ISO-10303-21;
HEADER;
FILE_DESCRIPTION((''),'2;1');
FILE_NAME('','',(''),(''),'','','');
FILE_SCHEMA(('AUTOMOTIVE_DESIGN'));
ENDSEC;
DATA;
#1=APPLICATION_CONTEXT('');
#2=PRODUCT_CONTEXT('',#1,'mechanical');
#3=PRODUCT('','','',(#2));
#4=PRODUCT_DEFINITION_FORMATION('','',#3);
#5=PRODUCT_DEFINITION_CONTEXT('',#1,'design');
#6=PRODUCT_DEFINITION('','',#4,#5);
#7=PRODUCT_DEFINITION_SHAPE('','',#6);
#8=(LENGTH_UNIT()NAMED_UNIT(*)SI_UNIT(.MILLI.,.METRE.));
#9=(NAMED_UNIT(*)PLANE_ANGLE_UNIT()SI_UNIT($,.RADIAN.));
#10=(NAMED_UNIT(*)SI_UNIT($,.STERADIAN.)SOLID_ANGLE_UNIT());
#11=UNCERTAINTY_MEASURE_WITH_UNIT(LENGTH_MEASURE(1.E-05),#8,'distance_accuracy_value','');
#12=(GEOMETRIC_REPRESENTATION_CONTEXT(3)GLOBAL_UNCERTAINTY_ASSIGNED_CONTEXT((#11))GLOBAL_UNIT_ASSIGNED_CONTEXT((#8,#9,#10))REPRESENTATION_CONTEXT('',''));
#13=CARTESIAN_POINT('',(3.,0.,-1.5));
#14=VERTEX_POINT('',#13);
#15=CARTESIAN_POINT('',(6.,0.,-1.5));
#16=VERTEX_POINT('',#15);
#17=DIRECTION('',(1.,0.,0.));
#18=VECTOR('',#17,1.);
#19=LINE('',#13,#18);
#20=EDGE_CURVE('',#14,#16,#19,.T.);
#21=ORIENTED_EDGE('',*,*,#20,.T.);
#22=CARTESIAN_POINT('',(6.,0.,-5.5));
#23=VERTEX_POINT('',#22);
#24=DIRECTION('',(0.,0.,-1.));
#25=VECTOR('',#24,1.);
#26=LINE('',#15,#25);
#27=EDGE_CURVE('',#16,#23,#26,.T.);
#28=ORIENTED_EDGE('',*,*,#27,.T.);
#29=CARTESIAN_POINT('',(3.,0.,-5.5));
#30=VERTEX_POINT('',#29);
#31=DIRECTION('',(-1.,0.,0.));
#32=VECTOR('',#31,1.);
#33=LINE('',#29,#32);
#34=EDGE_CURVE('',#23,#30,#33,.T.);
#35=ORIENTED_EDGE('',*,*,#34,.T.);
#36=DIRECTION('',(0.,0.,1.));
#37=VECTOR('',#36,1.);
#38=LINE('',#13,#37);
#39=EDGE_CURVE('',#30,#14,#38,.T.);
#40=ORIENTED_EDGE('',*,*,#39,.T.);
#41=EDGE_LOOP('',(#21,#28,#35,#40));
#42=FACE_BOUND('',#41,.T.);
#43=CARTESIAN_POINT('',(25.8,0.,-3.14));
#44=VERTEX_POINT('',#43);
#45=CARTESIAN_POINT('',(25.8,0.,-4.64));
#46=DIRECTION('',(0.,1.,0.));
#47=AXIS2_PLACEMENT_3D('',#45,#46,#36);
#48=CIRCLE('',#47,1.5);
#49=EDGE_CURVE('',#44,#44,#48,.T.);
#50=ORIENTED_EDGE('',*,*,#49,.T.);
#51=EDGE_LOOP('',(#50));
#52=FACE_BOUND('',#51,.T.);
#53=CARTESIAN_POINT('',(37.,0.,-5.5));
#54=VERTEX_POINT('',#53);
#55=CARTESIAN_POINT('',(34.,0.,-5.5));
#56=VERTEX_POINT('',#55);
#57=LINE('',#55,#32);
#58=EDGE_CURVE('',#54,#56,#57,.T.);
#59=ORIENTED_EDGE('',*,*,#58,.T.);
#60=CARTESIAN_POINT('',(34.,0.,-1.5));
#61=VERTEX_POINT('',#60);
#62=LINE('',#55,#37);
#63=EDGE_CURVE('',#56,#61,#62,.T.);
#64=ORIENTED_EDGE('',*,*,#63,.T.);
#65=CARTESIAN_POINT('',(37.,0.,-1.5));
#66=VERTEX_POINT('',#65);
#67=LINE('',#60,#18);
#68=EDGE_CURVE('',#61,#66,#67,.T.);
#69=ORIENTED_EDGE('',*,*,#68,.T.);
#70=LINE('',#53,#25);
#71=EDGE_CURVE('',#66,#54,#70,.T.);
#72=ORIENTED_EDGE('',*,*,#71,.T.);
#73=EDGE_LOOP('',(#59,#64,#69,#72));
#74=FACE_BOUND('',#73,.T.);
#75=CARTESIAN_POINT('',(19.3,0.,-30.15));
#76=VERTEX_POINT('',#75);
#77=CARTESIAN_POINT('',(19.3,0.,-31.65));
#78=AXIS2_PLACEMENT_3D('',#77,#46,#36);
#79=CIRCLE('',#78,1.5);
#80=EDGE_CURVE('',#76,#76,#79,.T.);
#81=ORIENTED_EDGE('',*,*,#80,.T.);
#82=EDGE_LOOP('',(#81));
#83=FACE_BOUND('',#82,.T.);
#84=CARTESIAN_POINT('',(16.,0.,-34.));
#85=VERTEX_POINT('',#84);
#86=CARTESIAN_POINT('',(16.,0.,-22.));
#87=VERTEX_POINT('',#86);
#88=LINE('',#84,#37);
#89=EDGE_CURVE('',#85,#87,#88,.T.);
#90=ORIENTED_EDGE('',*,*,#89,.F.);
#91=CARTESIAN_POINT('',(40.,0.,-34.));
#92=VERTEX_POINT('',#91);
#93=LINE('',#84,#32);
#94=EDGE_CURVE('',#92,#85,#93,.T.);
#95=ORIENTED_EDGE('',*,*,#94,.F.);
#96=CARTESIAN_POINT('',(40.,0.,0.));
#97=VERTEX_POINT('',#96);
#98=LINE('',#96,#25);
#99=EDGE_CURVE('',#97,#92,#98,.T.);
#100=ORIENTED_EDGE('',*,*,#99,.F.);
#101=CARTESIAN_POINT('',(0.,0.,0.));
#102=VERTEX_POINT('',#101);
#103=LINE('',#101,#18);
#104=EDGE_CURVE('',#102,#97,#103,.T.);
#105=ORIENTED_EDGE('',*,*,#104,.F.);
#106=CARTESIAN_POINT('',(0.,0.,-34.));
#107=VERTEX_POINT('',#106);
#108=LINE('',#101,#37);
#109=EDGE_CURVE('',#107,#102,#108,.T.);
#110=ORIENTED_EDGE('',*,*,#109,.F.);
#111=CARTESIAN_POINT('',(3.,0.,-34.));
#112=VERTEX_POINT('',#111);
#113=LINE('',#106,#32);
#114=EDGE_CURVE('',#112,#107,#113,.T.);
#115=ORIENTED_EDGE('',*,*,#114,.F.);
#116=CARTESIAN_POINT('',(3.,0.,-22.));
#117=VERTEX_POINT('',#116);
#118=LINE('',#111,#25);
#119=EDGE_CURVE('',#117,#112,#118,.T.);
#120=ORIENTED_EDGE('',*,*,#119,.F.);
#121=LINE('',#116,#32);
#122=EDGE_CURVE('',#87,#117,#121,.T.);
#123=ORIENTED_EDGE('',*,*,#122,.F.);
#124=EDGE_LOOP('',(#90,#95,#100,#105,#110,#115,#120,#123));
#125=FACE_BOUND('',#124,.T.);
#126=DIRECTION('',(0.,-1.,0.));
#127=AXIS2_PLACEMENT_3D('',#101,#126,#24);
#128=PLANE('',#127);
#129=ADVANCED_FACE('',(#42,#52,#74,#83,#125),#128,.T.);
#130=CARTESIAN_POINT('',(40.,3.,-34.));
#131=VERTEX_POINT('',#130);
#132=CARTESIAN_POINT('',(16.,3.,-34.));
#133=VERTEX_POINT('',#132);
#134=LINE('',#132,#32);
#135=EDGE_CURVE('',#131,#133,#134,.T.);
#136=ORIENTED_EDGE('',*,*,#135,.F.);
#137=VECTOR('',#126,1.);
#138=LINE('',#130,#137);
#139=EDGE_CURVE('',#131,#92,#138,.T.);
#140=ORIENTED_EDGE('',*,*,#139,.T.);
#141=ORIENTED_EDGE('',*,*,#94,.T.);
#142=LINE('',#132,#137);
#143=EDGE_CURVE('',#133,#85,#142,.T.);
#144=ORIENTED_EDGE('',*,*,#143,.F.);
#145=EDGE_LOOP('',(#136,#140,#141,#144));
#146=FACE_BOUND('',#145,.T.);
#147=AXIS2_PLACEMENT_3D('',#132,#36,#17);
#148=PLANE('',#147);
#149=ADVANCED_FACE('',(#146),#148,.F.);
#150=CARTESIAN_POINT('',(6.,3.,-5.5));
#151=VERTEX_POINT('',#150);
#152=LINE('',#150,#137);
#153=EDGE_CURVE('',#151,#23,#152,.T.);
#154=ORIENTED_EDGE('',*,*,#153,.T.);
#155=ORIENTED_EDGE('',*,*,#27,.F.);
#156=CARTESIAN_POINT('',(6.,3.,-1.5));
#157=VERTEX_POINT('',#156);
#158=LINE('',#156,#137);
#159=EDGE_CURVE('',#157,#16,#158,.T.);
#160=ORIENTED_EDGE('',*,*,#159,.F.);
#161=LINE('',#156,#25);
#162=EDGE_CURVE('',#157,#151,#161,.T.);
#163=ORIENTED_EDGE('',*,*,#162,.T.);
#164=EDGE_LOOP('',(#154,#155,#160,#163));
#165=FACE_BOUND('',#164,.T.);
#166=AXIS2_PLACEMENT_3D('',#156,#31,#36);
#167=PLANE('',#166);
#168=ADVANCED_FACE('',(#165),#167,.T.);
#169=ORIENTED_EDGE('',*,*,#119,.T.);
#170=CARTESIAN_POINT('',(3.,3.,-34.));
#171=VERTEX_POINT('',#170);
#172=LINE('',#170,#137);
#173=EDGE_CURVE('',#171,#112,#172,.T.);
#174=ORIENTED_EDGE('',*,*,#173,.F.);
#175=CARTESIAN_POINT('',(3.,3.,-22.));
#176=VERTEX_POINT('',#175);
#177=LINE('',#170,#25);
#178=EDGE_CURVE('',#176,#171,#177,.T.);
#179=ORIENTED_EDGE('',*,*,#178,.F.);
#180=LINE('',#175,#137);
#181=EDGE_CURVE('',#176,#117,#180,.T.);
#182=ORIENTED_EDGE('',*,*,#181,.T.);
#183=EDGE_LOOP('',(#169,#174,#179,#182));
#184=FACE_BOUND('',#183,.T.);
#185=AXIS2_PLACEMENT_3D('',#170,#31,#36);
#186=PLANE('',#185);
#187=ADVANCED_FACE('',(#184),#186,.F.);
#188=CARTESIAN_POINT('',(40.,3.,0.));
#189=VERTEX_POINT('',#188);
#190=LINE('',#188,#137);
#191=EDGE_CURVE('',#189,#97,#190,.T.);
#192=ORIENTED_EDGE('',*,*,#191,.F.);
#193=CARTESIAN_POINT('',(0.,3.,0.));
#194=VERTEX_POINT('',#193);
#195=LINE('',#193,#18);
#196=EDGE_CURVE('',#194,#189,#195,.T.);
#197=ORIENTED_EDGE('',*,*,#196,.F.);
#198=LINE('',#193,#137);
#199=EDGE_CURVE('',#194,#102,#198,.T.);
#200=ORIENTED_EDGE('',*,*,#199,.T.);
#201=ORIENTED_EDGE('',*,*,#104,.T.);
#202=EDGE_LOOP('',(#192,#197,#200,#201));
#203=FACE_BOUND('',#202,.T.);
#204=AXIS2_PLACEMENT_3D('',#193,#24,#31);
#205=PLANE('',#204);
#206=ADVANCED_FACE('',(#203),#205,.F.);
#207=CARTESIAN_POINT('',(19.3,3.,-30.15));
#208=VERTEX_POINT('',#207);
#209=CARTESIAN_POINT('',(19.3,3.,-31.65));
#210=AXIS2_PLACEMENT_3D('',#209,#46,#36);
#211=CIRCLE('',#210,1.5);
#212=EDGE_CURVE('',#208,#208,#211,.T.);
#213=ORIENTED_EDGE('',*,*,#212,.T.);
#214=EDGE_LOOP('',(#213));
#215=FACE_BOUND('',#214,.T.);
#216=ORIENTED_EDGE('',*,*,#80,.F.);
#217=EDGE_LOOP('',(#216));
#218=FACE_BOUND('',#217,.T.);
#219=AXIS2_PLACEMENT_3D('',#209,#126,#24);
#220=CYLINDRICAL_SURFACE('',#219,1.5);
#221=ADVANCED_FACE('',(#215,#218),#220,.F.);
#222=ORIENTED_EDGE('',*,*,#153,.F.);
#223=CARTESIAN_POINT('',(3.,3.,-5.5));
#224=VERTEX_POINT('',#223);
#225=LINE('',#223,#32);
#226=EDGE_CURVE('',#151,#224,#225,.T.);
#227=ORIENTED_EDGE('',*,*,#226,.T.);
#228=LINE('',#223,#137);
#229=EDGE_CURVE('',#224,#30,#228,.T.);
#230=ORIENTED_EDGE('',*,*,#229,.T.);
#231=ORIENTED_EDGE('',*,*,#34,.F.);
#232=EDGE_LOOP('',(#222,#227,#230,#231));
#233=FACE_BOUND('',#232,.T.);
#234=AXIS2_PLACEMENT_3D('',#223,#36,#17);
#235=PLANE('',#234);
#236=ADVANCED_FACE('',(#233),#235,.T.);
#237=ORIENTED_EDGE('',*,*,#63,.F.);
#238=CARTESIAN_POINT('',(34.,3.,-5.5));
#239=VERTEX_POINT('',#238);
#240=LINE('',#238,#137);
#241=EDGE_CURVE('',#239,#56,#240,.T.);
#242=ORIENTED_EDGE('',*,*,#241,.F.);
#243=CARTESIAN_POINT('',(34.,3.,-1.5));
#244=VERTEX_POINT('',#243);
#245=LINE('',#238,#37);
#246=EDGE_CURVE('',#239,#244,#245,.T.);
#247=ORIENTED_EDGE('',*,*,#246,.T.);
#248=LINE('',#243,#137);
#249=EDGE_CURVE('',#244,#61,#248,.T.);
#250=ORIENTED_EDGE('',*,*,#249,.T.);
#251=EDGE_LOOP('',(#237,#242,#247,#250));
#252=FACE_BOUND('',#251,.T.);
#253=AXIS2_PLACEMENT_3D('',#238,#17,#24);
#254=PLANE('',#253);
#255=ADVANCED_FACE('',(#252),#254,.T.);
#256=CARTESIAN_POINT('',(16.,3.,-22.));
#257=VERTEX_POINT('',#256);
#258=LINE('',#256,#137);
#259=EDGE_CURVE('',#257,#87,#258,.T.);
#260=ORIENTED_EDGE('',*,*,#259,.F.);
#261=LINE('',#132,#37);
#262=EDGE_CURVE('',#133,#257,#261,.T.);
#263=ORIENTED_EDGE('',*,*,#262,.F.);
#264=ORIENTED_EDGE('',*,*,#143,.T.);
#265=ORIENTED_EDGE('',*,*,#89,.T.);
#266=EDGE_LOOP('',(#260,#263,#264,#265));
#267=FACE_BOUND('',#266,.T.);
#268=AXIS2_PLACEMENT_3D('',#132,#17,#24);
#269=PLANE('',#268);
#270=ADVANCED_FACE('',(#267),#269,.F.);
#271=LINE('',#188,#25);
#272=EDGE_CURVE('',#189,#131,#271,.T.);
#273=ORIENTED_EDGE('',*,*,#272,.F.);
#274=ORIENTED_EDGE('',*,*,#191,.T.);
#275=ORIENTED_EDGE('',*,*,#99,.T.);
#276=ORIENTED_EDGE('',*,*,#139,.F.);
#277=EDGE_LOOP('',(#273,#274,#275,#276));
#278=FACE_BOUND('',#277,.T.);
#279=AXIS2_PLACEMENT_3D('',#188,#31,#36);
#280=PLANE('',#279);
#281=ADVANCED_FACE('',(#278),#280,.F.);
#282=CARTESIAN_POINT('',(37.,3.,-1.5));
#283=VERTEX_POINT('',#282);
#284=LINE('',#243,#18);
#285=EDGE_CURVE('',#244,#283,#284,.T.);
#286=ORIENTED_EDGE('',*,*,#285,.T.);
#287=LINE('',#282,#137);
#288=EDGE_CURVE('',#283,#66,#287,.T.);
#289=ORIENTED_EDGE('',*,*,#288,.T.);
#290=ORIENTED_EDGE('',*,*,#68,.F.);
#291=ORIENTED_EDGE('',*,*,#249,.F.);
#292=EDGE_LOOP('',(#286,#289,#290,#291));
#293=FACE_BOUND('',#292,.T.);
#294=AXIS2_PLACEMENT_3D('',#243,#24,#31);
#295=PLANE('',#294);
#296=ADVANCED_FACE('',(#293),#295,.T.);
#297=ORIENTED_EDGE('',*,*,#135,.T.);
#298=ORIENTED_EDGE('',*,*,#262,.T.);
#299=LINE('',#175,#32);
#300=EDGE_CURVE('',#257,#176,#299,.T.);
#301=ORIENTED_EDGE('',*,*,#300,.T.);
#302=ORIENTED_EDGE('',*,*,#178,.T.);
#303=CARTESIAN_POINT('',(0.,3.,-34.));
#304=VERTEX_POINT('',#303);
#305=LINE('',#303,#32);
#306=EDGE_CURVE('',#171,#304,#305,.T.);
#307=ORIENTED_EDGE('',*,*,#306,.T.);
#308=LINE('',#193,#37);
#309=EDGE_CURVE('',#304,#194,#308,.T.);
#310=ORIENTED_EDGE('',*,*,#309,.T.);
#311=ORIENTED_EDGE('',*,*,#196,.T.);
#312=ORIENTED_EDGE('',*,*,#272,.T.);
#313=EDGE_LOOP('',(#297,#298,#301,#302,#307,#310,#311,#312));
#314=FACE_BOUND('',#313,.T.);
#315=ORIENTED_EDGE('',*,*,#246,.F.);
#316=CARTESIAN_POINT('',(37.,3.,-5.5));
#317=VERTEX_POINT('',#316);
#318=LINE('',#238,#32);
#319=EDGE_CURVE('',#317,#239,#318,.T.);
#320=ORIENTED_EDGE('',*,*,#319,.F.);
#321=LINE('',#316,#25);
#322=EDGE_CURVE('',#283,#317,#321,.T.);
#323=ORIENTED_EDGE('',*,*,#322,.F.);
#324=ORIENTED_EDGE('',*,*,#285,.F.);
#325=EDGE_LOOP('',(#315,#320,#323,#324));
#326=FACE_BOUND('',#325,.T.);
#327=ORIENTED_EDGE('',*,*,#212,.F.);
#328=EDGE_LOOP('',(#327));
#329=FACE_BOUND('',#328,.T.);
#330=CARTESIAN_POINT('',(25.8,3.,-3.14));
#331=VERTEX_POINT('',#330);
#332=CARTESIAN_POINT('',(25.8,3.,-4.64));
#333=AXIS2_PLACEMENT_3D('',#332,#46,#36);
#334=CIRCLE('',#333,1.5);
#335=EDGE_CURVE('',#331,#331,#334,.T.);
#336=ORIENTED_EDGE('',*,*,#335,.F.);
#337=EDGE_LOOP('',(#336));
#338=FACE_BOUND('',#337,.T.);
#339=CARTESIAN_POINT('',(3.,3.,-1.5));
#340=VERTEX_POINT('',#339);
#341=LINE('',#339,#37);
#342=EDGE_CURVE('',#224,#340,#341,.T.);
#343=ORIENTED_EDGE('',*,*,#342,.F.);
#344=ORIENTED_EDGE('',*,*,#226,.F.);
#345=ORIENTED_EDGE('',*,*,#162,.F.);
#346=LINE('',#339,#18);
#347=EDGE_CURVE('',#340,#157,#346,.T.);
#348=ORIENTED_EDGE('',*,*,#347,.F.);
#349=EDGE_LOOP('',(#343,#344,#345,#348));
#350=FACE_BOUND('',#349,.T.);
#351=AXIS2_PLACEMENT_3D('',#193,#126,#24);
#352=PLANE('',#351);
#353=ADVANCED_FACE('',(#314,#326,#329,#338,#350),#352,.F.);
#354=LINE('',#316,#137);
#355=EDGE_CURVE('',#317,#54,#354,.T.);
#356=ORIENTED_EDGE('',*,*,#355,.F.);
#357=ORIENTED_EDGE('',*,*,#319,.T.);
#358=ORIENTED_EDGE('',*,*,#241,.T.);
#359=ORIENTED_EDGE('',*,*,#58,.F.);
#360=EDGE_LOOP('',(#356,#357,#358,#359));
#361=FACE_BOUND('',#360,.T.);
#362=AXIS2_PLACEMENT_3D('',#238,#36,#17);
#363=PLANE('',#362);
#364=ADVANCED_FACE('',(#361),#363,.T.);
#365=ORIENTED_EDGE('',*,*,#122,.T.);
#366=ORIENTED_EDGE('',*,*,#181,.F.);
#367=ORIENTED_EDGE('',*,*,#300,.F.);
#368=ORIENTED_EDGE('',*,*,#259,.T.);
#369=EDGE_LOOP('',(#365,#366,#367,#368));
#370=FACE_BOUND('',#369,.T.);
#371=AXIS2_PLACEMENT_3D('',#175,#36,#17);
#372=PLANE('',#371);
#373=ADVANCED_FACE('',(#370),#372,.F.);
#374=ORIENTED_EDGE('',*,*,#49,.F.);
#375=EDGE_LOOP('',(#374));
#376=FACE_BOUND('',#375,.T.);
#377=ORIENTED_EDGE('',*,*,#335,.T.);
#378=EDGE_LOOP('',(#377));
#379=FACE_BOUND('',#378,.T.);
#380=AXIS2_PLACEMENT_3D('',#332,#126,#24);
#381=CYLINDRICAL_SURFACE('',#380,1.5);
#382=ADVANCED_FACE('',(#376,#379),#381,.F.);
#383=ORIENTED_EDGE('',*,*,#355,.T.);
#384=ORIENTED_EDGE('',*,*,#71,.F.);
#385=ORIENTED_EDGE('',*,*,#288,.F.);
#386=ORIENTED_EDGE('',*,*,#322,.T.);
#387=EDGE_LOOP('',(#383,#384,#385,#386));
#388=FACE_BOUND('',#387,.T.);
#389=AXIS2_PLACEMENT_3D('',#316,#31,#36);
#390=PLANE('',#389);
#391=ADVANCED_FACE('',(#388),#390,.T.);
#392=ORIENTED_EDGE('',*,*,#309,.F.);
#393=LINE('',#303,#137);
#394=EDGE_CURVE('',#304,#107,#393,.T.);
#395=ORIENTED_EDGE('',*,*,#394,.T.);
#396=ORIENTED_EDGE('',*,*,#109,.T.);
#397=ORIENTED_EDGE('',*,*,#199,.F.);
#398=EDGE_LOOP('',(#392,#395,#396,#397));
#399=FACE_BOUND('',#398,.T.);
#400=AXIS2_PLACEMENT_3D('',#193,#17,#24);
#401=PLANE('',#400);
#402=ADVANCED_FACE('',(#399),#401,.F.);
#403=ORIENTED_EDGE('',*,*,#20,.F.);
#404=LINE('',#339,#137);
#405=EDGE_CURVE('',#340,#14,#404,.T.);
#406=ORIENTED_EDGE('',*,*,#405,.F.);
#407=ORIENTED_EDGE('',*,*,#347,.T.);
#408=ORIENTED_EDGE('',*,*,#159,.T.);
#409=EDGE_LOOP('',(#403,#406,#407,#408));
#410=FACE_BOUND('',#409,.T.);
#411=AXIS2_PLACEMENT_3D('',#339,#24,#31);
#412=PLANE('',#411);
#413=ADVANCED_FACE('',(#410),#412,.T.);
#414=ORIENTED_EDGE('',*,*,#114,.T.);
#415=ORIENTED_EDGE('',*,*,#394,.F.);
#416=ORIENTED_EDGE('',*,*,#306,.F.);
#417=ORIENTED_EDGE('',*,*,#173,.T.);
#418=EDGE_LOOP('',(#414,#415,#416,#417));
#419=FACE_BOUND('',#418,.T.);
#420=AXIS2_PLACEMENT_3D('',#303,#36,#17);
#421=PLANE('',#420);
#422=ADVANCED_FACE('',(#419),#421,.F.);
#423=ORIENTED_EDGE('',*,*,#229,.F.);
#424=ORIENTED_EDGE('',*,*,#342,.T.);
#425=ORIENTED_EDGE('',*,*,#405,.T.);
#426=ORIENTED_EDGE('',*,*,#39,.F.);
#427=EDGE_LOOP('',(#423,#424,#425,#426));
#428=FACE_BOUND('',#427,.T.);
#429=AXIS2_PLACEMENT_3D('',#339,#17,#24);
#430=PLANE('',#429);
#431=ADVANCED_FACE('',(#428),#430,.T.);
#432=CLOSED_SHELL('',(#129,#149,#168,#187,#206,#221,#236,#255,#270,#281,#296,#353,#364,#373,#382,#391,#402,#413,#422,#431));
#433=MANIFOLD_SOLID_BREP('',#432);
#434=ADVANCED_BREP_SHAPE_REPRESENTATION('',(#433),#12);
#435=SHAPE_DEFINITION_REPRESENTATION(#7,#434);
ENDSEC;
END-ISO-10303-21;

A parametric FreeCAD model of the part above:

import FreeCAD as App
import Part
import Sketcher
from FreeCAD import Vector


def add_polygon(sketch, points):
    """Adds a closed chain of lines whose ends are joined by coincident constraints."""
    first, n = sketch.GeometryCount, len(points)
    for a, b in zip(points, points[1:] + points[:1]):
        sketch.addGeometry(Part.LineSegment(App.Vector(*a, 0), App.Vector(*b, 0)), False)
    for i in range(n):
        sketch.addConstraint(Sketcher.Constraint("Coincident", first + i, 2, first + (i + 1) % n, 1))

doc = App.newDocument("Part")
body = doc.addObject("PartDesign::Body", "Body")

# Sketch on XZ plane
sketch1 = body.newObject("Sketcher::SketchObject", "Sketch")
sketch1.AttachmentSupport = (doc.getObject("XZ_Plane"), [""])
sketch1.MapMode = "FlatFace"
add_polygon(sketch1, [(40, -34), (16, -34), (16, -22), (3, -22), (3, -34), (0, -34), (0, 0), (40, 0)])  # lines 0-7
add_polygon(sketch1, [(34, -1.5), (34, -5.5), (37, -5.5), (37, -1.5)])  # lines 8-11
sketch1.addGeometry(Part.Circle(Vector(25.8, -4.6, 0), Vector(0, 0, 1), 1.5), False)  # 12
add_polygon(sketch1, [(3, -1.5), (3, -5.5), (6, -5.5), (6, -1.5)])  # lines 13-16
sketch1.addGeometry(Part.Circle(Vector(19.3, -31.6, 0), Vector(0, 0, 1), 1.5), False)  # 17
sketch1.addConstraint([
    Sketcher.Constraint("Horizontal", 0),
    Sketcher.Constraint("Vertical", 1),
    Sketcher.Constraint("Horizontal", 2),
    Sketcher.Constraint("Vertical", 3),
    Sketcher.Constraint("Horizontal", 4),
    Sketcher.Constraint("Vertical", 5),
    Sketcher.Constraint("Horizontal", 6),
    Sketcher.Constraint("Vertical", 7),
    Sketcher.Constraint("Vertical", 8),
    Sketcher.Constraint("Horizontal", 9),
    Sketcher.Constraint("Vertical", 10),
    Sketcher.Constraint("Horizontal", 11),
    Sketcher.Constraint("Vertical", 13),
    Sketcher.Constraint("Horizontal", 14),
    Sketcher.Constraint("Vertical", 15),
    Sketcher.Constraint("Horizontal", 16),
    Sketcher.Constraint("Coincident", 5, 2, -1, 1),
    Sketcher.Constraint("Equal", 12, 17),
    Sketcher.Constraint("Horizontal", 0, 2, 3, 2),
    Sketcher.Constraint("Horizontal", 9, 2, 13, 2),
    Sketcher.Constraint("Horizontal", 11, 2, 15, 2),
    Sketcher.Constraint("Vertical", 3, 2, 13, 2),
    Sketcher.Constraint("Equal", 4, 9),
    Sketcher.Constraint("Equal", 11, 14),
    Sketcher.Constraint("Diameter", 12, 3.0),
    Sketcher.Constraint("DistanceX", 0, 2, 0, 1, 24.0),
    Sketcher.Constraint("DistanceX", 2, 2, 2, 1, 13.0),
    Sketcher.Constraint("DistanceX", 4, 2, 4, 1, 3.0),
    Sketcher.Constraint("DistanceY", 1, 1, 1, 2, 12.0),
    Sketcher.Constraint("DistanceY", 5, 1, 5, 2, 34.0),
    Sketcher.Constraint("DistanceY", 8, 2, 8, 1, 4.0),
    Sketcher.Constraint("DistanceX", -1, 1, 8, 2, 34.0),
    Sketcher.Constraint("DistanceX", -1, 1, 12, 3, 25.8),
    Sketcher.Constraint("DistanceX", -1, 1, 17, 3, 19.3),
    Sketcher.Constraint("DistanceY", 8, 2, -1, 1, 5.5),
    Sketcher.Constraint("DistanceY", 12, 3, -1, 1, 4.64),
    Sketcher.Constraint("DistanceY", 17, 3, -1, 1, 31.65),
])
pad1 = body.newObject("PartDesign::Pad", "Pad")
pad1.Profile = sketch1
pad1.Length = 3
pad1.Reversed = True

doc.recompute()
